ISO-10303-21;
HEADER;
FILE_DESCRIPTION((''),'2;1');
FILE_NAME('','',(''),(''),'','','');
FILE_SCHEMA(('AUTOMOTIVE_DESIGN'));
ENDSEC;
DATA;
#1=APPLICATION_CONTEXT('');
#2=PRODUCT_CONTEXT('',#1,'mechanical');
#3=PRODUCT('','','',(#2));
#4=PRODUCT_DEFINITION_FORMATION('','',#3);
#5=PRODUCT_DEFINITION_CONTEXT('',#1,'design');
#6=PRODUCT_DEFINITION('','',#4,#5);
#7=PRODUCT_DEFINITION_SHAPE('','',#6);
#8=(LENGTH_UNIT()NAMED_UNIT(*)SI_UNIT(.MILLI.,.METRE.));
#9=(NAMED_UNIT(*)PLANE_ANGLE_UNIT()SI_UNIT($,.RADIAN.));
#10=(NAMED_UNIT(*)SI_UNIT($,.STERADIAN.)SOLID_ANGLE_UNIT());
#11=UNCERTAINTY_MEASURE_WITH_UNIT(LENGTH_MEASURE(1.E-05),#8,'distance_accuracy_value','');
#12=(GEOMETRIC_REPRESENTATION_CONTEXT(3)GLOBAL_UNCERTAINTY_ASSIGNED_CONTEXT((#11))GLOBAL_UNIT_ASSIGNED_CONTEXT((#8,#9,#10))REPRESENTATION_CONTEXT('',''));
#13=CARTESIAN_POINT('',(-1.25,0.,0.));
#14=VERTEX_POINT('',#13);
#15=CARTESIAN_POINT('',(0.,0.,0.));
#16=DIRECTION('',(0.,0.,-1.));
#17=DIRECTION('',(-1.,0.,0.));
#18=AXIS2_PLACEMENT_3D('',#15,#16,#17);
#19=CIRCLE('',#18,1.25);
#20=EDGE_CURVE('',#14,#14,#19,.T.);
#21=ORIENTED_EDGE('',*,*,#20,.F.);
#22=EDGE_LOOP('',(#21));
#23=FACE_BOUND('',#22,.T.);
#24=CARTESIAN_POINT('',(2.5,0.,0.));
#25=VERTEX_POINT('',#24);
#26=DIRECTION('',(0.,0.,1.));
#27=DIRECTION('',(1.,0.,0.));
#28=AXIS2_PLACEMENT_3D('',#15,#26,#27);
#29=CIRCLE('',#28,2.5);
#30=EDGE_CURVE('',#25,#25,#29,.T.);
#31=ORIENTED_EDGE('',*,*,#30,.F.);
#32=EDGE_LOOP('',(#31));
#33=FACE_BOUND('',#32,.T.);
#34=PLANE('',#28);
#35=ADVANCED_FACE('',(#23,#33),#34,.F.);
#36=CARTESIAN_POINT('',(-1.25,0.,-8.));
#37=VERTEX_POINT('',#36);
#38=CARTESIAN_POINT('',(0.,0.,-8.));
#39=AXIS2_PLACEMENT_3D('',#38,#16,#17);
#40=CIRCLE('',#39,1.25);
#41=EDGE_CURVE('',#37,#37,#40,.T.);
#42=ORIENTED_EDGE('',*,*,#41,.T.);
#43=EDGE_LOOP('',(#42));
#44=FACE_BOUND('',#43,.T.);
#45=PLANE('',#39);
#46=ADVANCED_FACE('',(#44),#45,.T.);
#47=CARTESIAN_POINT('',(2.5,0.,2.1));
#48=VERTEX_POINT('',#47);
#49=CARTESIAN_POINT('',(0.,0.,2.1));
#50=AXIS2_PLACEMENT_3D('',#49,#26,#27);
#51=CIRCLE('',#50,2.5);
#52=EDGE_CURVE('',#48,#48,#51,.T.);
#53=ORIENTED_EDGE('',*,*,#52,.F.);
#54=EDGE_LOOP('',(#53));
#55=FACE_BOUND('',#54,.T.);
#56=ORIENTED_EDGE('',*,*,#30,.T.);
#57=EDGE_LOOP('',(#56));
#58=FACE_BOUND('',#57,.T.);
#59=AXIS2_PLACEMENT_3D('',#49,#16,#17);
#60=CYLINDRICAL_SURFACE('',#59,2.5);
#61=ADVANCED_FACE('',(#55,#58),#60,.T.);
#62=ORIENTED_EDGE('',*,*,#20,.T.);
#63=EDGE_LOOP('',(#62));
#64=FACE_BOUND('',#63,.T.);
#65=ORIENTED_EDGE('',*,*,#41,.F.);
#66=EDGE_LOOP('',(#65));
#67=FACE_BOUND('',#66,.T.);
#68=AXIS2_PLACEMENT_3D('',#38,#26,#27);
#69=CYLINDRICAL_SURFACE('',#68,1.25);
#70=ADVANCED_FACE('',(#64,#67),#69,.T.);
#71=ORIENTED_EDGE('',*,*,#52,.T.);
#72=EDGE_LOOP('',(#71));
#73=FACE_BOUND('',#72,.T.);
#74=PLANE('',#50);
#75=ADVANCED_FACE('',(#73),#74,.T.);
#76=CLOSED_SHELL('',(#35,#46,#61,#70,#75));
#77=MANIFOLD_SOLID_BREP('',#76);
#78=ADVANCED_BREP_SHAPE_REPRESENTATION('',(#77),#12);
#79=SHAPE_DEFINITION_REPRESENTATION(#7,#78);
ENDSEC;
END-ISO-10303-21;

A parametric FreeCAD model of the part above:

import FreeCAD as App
import Part
import Sketcher
from FreeCAD import Vector

doc = App.newDocument("Part")
params = doc.addObject("Spreadsheet::Sheet", "Params")
for row, (alias, value) in enumerate([
    ("sketch1_diameter", "5 mm"),
    ("pad1_length", "2.1 mm"),
    ("sketch2_diameter", "2.5 mm"),
    ("pad2_length", "8 mm"),
], start=1):
    params.set(f"A{row}", alias)
    params.set(f"B{row}", "=" + value)
    params.setAlias(f"B{row}", alias)

body = doc.addObject("PartDesign::Body", "Body")

# Sketch on XY plane
sketch1 = doc.addObject("Sketcher::SketchObject", "Sketch")
body.addObject(sketch1)
sketch1.AttachmentSupport = (doc.XY_Plane, [""])
sketch1.MapMode = "FlatFace"
sketch1.addGeometry(Part.Circle(Vector(0, 0, 0), Vector(0, 0, 1), 2.5), False)
sketch1.addConstraint([
    Sketcher.Constraint("Coincident", 0, 3, -1, 1),
    Sketcher.Constraint("Diameter", 0, 5.0),
])
sketch1.setExpression("Constraints[1]", "Params.sketch1_diameter")
pad1 = doc.addObject("PartDesign::Pad", "Pad")
body.addObject(pad1)
pad1.Profile = sketch1
pad1.setExpression("Length", "Params.pad1_length")

# Sketch on XY plane
sketch2 = doc.addObject("Sketcher::SketchObject", "Sketch001")
body.addObject(sketch2)
sketch2.AttachmentSupport = (doc.XY_Plane, [""])
sketch2.MapMode = "FlatFace"
sketch2.addGeometry(Part.Circle(Vector(0, 0, 0), Vector(0, 0, 1), 1.2), False)
sketch2.addConstraint([
    Sketcher.Constraint("Coincident", 0, 3, -1, 1),
    Sketcher.Constraint("Diameter", 0, 2.5),
])
sketch2.setExpression("Constraints[1]", "Params.sketch2_diameter")
pad2 = doc.addObject("PartDesign::Pad", "Pad001")
body.addObject(pad2)
pad2.Profile = sketch2
pad2.setExpression("Length", "Params.pad2_length")
pad2.Reversed = True

doc.recompute()
